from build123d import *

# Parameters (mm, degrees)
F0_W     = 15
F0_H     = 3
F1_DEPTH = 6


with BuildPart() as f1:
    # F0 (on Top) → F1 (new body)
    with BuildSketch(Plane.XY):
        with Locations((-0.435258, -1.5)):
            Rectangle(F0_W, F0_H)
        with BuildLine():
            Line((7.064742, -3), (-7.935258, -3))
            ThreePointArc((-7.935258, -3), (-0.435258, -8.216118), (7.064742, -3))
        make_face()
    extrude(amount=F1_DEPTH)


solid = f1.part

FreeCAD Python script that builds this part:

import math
import FreeCAD as App
import Part
import Sketcher

V = App.Vector
Q = App.Units.Quantity

doc = App.newDocument("Part")
body = doc.addObject("PartDesign::Body", "Body")

# Sketch on XY plane
sketch1 = body.newObject("Sketcher::SketchObject", "Sketch")
sketch1.AttachmentSupport = (doc.getObject("XY_Plane"), [""])
sketch1.MapMode = "FlatFace"
sketch1.addGeometry([
    Part.LineSegment(V(-7.9, 0, 0), V(-7.9, -3, 0)),
    Part.ArcOfCircle(Part.Circle(V(-0.4, -0.2, 0), V(0, 0, 1), 8), math.radians(-160), math.radians(-20)),
    Part.LineSegment(V(7.1, -3, 0), V(7.1, 0, 0)),
    Part.LineSegment(V(7.1, 0, 0), V(-7.9, 0, 0)),
], False)
sketch1.addConstraint([
    Sketcher.Constraint("Coincident", 0, 2, 1, 1),
    Sketcher.Constraint("Coincident", 1, 2, 2, 1),
    Sketcher.Constraint("Coincident", 2, 2, 3, 1),
    Sketcher.Constraint("Coincident", 3, 2, 0, 1),
    Sketcher.Constraint("Vertical", 0),
    Sketcher.Constraint("Vertical", 2),
    Sketcher.Constraint("Horizontal", 3),
    Sketcher.Constraint("PointOnObject", 2, 2, -1),
    Sketcher.Constraint("Horizontal", 0, 2, 1, 2),
    Sketcher.Constraint("Radius", 1, Q("8 mm")),
    Sketcher.Constraint("DistanceX", 3, 2, 3, 1, Q("15 mm")),
    Sketcher.Constraint("DistanceY", 0, 2, 0, 1, Q("3 mm")),
    Sketcher.Constraint("DistanceX", -1, 1, 1, 2, Q("7.064742 mm")),
])
pad1 = body.newObject("PartDesign::Pad", "Pad")
pad1.Profile = sketch1
pad1.Length = 6

doc.recompute()
